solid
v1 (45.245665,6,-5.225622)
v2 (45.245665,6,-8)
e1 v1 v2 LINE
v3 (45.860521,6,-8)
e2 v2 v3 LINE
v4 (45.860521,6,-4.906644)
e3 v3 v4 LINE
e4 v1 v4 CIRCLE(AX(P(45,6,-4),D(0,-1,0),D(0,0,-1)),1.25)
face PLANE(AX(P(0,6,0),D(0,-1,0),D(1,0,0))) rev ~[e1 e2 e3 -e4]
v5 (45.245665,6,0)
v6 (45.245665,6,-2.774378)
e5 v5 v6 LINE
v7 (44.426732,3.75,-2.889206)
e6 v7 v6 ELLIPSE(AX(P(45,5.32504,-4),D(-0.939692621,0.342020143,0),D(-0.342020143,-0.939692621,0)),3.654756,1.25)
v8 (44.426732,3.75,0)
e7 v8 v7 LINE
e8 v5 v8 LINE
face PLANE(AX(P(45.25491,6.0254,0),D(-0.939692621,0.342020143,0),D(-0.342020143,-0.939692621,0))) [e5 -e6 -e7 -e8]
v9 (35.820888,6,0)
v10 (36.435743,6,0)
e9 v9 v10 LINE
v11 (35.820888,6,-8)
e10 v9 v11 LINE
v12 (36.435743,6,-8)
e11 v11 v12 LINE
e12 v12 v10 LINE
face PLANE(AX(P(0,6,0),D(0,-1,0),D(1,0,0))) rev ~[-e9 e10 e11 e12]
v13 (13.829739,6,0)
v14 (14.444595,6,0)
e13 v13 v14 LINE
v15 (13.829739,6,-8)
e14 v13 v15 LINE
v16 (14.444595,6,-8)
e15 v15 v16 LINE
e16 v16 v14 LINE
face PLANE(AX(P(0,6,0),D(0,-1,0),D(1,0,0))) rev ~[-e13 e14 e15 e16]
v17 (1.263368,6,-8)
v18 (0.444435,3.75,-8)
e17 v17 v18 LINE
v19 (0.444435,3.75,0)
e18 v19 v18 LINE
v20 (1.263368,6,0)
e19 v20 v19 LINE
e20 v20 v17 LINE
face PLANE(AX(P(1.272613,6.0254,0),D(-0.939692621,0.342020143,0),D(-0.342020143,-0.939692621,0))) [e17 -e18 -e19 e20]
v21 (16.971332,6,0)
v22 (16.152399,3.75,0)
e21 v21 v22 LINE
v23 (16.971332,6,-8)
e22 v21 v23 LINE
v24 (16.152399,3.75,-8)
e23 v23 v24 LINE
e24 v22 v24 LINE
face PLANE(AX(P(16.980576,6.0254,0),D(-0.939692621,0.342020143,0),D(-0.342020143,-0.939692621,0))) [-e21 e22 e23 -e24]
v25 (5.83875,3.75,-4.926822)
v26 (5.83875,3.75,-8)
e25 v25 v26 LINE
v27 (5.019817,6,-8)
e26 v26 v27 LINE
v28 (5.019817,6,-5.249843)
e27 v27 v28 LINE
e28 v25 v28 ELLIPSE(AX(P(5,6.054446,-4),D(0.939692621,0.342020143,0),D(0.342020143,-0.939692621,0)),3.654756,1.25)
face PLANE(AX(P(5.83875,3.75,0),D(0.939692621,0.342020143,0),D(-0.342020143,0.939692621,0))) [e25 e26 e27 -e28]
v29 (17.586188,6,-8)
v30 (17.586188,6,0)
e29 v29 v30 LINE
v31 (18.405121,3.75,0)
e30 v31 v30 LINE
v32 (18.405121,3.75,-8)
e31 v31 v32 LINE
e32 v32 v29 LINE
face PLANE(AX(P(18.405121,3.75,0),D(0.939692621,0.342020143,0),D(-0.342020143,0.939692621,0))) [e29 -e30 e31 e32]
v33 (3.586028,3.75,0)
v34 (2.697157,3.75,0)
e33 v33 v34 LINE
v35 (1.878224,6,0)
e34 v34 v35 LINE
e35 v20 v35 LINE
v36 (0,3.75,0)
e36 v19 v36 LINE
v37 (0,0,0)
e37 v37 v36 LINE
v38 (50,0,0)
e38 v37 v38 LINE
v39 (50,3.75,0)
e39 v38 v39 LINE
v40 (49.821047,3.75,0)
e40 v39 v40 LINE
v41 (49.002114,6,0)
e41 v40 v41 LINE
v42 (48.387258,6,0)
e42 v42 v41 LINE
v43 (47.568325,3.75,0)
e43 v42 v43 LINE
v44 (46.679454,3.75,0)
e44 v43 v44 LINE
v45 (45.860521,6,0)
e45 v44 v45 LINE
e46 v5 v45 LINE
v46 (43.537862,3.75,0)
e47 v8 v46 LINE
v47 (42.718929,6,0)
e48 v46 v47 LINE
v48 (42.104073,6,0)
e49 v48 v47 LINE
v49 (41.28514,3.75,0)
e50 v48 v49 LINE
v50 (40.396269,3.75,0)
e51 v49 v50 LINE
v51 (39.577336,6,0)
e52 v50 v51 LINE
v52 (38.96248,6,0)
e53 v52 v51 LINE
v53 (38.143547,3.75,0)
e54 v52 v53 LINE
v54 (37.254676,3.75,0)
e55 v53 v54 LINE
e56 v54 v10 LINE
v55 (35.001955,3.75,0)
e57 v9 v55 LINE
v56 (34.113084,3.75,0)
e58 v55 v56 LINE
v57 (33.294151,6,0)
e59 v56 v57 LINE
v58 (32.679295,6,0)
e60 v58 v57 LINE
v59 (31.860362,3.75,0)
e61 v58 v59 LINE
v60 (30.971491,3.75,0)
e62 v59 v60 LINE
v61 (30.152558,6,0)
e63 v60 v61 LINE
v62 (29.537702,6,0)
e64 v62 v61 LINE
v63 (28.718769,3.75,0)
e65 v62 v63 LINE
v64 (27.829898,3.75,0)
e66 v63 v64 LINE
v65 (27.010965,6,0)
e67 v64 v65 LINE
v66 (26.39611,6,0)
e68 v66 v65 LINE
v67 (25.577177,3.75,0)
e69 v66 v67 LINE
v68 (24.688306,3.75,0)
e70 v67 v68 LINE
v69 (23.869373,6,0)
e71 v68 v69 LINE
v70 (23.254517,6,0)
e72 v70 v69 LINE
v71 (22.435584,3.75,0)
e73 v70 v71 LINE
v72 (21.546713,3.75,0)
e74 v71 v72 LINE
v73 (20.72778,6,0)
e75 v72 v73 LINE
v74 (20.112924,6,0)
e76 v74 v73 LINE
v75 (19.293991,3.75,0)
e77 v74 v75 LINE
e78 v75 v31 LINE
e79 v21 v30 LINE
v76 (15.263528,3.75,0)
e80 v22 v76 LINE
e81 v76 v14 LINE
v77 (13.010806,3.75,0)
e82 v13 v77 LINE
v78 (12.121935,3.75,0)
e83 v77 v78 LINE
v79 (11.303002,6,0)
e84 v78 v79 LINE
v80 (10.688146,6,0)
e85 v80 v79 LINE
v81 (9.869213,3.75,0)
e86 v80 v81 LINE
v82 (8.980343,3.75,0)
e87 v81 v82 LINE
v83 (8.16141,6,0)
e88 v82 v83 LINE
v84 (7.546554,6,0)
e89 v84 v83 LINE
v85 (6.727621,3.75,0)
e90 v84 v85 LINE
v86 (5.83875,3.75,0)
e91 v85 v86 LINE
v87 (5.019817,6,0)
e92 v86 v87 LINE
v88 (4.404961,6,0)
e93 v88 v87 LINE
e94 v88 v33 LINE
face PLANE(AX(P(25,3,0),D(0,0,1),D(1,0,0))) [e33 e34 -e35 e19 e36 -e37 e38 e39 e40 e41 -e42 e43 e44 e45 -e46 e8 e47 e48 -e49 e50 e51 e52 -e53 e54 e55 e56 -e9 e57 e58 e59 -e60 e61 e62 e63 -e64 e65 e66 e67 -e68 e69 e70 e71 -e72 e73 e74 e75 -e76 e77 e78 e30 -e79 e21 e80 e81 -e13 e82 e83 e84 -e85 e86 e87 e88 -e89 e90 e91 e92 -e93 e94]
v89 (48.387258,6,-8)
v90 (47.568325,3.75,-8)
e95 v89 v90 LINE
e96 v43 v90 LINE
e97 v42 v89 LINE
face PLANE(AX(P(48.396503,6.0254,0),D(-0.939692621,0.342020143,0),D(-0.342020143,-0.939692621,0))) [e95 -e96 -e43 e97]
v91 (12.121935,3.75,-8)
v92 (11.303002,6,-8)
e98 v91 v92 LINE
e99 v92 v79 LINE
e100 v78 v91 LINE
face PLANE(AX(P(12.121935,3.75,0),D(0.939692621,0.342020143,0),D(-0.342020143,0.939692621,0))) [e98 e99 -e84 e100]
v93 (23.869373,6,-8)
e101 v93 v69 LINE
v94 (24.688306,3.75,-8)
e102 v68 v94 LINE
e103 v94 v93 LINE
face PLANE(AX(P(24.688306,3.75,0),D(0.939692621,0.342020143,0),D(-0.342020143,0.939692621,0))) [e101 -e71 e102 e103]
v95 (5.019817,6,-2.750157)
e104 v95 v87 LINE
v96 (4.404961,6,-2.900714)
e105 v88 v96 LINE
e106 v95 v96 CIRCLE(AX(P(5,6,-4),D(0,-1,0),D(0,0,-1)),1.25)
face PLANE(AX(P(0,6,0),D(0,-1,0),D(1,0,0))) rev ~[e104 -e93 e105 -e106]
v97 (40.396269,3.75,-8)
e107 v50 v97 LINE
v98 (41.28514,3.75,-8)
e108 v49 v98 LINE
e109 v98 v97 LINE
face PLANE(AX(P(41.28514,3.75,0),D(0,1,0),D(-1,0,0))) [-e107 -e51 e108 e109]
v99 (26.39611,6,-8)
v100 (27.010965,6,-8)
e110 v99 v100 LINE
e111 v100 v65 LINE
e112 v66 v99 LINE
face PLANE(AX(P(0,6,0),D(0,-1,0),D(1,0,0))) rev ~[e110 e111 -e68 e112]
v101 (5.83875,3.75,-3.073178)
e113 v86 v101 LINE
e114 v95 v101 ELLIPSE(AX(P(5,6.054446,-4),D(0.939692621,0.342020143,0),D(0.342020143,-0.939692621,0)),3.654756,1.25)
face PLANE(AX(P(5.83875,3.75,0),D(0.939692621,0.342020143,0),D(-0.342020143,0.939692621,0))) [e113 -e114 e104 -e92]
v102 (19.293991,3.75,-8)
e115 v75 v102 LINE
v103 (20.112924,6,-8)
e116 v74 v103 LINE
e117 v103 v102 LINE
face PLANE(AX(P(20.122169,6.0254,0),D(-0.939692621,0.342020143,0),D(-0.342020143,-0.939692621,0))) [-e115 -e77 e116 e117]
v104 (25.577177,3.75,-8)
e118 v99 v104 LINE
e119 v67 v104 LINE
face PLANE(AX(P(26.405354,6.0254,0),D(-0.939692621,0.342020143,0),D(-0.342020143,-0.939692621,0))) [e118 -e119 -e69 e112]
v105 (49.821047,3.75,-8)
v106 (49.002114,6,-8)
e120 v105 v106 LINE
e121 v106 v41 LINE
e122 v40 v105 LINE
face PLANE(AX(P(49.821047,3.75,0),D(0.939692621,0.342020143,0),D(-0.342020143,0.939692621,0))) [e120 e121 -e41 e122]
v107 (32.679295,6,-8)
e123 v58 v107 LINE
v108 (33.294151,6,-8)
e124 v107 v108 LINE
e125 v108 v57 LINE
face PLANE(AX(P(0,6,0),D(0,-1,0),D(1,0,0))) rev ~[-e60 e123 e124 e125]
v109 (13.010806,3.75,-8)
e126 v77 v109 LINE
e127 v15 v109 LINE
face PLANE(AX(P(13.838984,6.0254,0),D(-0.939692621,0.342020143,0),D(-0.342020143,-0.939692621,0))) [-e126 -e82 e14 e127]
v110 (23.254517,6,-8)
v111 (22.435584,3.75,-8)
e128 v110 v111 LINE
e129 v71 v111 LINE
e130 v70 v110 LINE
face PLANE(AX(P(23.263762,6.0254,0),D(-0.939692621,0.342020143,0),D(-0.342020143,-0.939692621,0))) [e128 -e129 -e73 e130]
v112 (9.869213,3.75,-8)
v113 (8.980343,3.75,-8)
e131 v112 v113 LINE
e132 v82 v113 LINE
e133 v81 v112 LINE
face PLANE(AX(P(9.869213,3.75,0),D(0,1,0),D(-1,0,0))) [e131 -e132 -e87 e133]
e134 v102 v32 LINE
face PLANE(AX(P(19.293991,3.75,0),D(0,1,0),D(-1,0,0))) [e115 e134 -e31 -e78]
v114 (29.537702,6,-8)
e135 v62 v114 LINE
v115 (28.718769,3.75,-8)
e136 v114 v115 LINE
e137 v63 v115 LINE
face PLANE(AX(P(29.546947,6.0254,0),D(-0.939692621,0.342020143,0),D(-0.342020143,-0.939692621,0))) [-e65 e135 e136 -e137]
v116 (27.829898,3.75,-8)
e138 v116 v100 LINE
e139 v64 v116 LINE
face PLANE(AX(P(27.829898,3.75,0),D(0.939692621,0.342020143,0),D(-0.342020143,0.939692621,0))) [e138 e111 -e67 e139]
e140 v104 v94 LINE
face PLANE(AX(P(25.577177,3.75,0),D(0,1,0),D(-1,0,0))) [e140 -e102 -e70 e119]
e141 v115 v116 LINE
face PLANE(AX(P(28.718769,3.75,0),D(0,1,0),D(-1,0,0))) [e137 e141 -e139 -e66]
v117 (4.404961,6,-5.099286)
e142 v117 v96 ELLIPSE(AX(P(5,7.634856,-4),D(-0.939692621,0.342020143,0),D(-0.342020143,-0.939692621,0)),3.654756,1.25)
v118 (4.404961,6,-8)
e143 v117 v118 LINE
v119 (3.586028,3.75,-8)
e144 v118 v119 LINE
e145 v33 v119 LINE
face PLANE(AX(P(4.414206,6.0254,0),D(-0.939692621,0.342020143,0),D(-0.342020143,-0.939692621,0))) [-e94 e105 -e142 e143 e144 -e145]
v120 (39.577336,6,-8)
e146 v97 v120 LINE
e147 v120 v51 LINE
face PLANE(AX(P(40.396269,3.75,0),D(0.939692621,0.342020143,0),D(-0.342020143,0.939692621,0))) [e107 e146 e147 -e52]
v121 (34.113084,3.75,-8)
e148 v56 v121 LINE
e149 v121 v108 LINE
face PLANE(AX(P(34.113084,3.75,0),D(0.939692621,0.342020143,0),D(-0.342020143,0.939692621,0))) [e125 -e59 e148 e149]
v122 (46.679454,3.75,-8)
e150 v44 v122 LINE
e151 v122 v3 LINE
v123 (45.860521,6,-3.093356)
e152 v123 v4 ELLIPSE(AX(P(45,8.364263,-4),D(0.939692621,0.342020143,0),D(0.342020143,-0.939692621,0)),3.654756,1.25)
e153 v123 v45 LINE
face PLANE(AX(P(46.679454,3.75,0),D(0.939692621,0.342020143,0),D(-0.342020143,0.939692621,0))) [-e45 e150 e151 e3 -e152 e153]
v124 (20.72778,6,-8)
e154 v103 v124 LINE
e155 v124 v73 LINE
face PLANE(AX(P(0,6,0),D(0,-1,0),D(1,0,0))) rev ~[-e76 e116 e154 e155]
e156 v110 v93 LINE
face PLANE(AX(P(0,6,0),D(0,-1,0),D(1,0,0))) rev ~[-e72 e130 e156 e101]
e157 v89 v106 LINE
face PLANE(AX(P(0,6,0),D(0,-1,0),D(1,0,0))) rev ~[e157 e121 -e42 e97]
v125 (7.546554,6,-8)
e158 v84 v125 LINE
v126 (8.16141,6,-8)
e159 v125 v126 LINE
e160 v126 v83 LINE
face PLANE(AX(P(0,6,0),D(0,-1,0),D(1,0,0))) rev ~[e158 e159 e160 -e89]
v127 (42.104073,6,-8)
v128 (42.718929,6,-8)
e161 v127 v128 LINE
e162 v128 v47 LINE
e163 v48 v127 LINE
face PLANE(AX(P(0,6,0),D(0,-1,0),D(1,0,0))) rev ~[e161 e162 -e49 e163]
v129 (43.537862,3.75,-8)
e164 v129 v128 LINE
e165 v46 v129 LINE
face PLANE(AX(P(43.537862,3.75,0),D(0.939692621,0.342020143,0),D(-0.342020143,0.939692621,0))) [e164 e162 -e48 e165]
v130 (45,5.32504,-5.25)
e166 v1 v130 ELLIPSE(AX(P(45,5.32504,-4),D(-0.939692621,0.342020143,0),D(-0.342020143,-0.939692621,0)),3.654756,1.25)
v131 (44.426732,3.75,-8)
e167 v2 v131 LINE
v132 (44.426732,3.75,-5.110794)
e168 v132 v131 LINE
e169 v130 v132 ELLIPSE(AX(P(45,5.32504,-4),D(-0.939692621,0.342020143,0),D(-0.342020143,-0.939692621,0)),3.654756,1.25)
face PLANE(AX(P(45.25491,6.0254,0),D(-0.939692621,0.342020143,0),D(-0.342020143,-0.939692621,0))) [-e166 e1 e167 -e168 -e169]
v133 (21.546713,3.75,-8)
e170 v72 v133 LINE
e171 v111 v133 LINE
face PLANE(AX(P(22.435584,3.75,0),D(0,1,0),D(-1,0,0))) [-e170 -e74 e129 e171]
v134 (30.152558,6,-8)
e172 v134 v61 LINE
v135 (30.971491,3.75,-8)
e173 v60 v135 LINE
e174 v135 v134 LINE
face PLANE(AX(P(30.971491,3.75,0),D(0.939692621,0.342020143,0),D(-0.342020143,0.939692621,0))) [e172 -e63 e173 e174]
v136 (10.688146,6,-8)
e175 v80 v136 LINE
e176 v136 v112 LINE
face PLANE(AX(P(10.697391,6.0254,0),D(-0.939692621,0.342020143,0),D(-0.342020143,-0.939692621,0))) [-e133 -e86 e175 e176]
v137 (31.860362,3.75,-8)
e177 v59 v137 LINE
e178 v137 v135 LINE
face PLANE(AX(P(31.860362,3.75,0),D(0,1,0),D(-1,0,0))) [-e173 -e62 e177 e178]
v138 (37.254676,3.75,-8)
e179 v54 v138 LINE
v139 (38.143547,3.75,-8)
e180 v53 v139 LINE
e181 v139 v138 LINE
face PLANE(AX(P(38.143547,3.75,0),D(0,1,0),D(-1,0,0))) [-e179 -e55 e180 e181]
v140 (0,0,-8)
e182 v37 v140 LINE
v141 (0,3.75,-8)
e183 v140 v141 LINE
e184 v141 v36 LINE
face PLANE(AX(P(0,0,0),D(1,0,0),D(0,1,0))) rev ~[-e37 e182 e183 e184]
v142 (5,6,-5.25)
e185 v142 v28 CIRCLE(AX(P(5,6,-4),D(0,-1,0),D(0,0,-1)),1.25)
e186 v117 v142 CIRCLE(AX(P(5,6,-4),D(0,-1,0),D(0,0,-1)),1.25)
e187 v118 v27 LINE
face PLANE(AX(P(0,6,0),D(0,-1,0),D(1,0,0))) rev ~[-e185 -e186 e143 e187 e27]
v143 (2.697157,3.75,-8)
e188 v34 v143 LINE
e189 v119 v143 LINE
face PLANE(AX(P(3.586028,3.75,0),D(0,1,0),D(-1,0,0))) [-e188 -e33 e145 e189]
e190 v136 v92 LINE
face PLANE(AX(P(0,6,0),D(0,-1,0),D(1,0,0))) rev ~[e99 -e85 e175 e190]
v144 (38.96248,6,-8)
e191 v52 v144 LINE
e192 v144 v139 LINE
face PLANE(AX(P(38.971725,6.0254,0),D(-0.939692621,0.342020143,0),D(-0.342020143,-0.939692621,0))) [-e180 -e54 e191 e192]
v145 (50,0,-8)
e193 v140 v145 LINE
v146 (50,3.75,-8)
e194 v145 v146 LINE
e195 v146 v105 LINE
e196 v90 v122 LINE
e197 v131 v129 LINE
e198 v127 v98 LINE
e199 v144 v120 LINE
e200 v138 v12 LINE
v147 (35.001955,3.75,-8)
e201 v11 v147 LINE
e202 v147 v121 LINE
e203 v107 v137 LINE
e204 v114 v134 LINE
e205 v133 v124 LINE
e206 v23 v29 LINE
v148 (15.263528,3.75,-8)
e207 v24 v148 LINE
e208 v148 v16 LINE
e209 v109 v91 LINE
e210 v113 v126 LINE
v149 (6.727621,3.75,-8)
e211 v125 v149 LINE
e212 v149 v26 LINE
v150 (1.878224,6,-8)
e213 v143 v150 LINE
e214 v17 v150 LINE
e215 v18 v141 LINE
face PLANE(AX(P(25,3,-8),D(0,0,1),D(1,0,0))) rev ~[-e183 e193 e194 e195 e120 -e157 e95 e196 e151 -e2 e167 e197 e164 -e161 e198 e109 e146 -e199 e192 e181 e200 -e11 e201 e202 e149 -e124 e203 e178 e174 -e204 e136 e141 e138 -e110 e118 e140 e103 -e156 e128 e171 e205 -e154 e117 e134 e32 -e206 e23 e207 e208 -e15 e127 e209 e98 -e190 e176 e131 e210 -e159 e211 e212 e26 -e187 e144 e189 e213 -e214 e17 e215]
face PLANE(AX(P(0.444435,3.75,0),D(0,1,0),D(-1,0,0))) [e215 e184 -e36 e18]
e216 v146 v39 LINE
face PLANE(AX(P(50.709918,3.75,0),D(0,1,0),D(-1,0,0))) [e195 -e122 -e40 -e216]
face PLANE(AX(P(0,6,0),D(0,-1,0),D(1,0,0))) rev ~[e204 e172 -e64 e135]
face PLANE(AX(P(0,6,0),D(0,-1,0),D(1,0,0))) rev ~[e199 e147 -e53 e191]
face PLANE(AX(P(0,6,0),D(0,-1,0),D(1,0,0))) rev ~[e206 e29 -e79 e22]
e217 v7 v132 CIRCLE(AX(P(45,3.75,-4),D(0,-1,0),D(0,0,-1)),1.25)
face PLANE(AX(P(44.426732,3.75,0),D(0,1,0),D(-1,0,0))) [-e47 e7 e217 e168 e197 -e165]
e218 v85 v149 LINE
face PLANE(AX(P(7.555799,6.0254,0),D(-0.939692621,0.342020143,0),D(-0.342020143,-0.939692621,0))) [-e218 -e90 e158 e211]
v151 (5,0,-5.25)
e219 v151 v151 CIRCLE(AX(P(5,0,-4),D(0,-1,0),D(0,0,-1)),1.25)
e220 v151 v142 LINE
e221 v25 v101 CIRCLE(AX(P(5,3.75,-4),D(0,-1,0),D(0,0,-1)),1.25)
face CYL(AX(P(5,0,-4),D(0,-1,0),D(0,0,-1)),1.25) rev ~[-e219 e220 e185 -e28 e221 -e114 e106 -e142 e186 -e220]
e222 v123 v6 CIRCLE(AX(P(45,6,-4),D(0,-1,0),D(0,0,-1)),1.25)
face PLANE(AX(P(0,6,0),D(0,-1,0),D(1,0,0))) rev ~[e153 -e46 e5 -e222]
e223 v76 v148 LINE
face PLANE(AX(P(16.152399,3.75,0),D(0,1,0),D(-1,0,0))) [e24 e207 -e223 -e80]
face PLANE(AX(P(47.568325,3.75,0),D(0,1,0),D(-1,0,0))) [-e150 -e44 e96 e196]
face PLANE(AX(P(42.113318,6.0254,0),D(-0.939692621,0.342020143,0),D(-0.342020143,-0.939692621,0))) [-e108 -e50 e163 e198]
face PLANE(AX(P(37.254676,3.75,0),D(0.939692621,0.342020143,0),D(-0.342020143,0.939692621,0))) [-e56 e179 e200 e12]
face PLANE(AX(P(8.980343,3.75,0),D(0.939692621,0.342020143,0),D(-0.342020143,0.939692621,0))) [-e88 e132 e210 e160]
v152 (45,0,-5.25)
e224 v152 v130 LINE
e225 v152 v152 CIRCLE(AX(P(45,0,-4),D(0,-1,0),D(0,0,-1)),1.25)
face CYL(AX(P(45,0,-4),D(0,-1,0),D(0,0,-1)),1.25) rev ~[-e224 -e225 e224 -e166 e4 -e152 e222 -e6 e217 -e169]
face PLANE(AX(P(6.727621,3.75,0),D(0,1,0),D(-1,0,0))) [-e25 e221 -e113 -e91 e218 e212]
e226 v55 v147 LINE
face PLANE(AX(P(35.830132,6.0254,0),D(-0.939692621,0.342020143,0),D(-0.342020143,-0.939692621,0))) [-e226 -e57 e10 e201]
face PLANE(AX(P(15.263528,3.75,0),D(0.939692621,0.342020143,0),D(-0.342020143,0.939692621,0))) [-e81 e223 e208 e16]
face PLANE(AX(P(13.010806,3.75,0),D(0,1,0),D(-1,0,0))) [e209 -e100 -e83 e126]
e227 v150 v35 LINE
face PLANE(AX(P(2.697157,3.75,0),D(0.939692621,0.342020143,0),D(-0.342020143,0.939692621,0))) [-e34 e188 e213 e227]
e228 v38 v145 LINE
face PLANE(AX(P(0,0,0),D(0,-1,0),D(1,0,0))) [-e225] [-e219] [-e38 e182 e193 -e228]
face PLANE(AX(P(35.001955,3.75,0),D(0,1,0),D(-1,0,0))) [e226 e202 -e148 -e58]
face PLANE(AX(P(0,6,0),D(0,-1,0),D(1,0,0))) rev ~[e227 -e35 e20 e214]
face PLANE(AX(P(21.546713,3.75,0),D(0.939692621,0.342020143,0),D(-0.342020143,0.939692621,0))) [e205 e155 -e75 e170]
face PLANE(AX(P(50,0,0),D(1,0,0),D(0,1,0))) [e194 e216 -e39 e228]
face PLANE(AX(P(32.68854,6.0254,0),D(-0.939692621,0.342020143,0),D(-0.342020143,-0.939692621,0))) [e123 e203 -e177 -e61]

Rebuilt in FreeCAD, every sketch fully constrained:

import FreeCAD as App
import Part
import Sketcher

V = App.Vector
Q = App.Units.Quantity


def add_polygon(sketch, points):
    """Adds a closed chain of lines whose ends are joined by coincident constraints."""
    first, n = sketch.GeometryCount, len(points)
    for a, b in zip(points, points[1:] + points[:1]):
        sketch.addGeometry(Part.LineSegment(App.Vector(*a, 0), App.Vector(*b, 0)), False)
    for i in range(n):
        sketch.addConstraint(Sketcher.Constraint("Coincident", first + i, 2, first + (i + 1) % n, 1))

doc = App.newDocument("Part")
body = doc.addObject("PartDesign::Body", "Body")

sketch1 = body.newObject("Sketcher::SketchObject", "Sketch")
sketch1.AttachmentSupport = (doc.getObject("XY_Plane"), [""])
sketch1.MapMode = "FlatFace"
add_polygon(sketch1, [(0, 6), (0, 0), (50, 0), (50, 6)])
sketch1.addConstraint(Sketcher.Constraint("Vertical", 0))
sketch1.addConstraint(Sketcher.Constraint("Horizontal", 1))
sketch1.addConstraint(Sketcher.Constraint("Vertical", 2))
sketch1.addConstraint(Sketcher.Constraint("Horizontal", 3))
sketch1.addConstraint(Sketcher.Constraint("Coincident", 0, 2, -1, 1))
sketch1.addConstraint(Sketcher.Constraint("DistanceX", 1, 1, 1, 2, 50.0))
sketch1.addConstraint(Sketcher.Constraint("DistanceY", 0, 2, 0, 1, 6.0))
pad1 = body.newObject("PartDesign::Pad", "Pad")
pad1.Profile = sketch1
pad1.Length = 8
pad1.Reversed = True

sketch2 = body.newObject("Sketcher::SketchObject", "Sketch001")
sketch2.AttachmentSupport = (doc.getObject("XY_Plane"), [""])
sketch2.MapMode = "FlatFace"
add_polygon(sketch2, [(-0.444435, 3.75), (0.444435, 3.75), (1.272613, 6.0254), (-1.272613, 6.0254)])
sketch2.addConstraint(Sketcher.Constraint("Horizontal", 0))
sketch2.addConstraint(Sketcher.Constraint("Horizontal", 2))
sketch2.addConstraint(Sketcher.Constraint("Equal", 1, 3))
sketch2.addConstraint(Sketcher.Constraint("Angle", 1, Q("70 deg")))
sketch2.addConstraint(Sketcher.Constraint("DistanceY", -1, 1, 0, 2, 3.75))
sketch2.addConstraint(Sketcher.Constraint("DistanceX", 0, 1, 0, 2, 0.888871))
sketch2.addConstraint(Sketcher.Constraint("DistanceY", -1, 1, 1, 2, 6.0254))
sketch2.addConstraint(Sketcher.Constraint("DistanceX", -1, 1, 0, 2, 0.444435))
pocket1 = body.newObject("PartDesign::Pocket", "Pocket")
pocket1.Profile = sketch2
pocket1.Type = "ThroughAll"
doc.recompute()

linearpattern = body.newObject("PartDesign::LinearPattern", "LinearPattern")
linearpattern.Originals = [pocket1]
linearpattern.Direction = (doc.getObject("X_Axis"), [""])
linearpattern.Mode = "offset"
linearpattern.Offset = 3.141593
linearpattern.Occurrences = 17
body.Tip = linearpattern

sketch3 = body.newObject("Sketcher::SketchObject", "Sketch002")
sketch3.AttachmentSupport = (doc.getObject("XZ_Plane"), [""])
sketch3.MapMode = "FlatFace"
sketch3.addGeometry(Part.Circle(V(45, -4, 0), V(0, 0, 1), 1.25), False)
sketch3.addGeometry(Part.Circle(V(5, -4, 0), V(0, 0, 1), 1.25), False)
sketch3.addConstraint(Sketcher.Constraint("Equal", 0, 1))
sketch3.addConstraint(Sketcher.Constraint("Horizontal", 0, 3, 1, 3))
sketch3.addConstraint(Sketcher.Constraint("Diameter", 0, 2.5))
sketch3.addConstraint(Sketcher.Constraint("DistanceX", -1, 1, 0, 3, 45.0))
sketch3.addConstraint(Sketcher.Constraint("DistanceY", 0, 3, -1, 1, 4.0))
sketch3.addConstraint(Sketcher.Constraint("DistanceX", -1, 1, 1, 3, 5.0))
pocket2 = body.newObject("PartDesign::Pocket", "Pocket001")
pocket2.Profile = sketch3
pocket2.Length = 10

doc.recompute()
